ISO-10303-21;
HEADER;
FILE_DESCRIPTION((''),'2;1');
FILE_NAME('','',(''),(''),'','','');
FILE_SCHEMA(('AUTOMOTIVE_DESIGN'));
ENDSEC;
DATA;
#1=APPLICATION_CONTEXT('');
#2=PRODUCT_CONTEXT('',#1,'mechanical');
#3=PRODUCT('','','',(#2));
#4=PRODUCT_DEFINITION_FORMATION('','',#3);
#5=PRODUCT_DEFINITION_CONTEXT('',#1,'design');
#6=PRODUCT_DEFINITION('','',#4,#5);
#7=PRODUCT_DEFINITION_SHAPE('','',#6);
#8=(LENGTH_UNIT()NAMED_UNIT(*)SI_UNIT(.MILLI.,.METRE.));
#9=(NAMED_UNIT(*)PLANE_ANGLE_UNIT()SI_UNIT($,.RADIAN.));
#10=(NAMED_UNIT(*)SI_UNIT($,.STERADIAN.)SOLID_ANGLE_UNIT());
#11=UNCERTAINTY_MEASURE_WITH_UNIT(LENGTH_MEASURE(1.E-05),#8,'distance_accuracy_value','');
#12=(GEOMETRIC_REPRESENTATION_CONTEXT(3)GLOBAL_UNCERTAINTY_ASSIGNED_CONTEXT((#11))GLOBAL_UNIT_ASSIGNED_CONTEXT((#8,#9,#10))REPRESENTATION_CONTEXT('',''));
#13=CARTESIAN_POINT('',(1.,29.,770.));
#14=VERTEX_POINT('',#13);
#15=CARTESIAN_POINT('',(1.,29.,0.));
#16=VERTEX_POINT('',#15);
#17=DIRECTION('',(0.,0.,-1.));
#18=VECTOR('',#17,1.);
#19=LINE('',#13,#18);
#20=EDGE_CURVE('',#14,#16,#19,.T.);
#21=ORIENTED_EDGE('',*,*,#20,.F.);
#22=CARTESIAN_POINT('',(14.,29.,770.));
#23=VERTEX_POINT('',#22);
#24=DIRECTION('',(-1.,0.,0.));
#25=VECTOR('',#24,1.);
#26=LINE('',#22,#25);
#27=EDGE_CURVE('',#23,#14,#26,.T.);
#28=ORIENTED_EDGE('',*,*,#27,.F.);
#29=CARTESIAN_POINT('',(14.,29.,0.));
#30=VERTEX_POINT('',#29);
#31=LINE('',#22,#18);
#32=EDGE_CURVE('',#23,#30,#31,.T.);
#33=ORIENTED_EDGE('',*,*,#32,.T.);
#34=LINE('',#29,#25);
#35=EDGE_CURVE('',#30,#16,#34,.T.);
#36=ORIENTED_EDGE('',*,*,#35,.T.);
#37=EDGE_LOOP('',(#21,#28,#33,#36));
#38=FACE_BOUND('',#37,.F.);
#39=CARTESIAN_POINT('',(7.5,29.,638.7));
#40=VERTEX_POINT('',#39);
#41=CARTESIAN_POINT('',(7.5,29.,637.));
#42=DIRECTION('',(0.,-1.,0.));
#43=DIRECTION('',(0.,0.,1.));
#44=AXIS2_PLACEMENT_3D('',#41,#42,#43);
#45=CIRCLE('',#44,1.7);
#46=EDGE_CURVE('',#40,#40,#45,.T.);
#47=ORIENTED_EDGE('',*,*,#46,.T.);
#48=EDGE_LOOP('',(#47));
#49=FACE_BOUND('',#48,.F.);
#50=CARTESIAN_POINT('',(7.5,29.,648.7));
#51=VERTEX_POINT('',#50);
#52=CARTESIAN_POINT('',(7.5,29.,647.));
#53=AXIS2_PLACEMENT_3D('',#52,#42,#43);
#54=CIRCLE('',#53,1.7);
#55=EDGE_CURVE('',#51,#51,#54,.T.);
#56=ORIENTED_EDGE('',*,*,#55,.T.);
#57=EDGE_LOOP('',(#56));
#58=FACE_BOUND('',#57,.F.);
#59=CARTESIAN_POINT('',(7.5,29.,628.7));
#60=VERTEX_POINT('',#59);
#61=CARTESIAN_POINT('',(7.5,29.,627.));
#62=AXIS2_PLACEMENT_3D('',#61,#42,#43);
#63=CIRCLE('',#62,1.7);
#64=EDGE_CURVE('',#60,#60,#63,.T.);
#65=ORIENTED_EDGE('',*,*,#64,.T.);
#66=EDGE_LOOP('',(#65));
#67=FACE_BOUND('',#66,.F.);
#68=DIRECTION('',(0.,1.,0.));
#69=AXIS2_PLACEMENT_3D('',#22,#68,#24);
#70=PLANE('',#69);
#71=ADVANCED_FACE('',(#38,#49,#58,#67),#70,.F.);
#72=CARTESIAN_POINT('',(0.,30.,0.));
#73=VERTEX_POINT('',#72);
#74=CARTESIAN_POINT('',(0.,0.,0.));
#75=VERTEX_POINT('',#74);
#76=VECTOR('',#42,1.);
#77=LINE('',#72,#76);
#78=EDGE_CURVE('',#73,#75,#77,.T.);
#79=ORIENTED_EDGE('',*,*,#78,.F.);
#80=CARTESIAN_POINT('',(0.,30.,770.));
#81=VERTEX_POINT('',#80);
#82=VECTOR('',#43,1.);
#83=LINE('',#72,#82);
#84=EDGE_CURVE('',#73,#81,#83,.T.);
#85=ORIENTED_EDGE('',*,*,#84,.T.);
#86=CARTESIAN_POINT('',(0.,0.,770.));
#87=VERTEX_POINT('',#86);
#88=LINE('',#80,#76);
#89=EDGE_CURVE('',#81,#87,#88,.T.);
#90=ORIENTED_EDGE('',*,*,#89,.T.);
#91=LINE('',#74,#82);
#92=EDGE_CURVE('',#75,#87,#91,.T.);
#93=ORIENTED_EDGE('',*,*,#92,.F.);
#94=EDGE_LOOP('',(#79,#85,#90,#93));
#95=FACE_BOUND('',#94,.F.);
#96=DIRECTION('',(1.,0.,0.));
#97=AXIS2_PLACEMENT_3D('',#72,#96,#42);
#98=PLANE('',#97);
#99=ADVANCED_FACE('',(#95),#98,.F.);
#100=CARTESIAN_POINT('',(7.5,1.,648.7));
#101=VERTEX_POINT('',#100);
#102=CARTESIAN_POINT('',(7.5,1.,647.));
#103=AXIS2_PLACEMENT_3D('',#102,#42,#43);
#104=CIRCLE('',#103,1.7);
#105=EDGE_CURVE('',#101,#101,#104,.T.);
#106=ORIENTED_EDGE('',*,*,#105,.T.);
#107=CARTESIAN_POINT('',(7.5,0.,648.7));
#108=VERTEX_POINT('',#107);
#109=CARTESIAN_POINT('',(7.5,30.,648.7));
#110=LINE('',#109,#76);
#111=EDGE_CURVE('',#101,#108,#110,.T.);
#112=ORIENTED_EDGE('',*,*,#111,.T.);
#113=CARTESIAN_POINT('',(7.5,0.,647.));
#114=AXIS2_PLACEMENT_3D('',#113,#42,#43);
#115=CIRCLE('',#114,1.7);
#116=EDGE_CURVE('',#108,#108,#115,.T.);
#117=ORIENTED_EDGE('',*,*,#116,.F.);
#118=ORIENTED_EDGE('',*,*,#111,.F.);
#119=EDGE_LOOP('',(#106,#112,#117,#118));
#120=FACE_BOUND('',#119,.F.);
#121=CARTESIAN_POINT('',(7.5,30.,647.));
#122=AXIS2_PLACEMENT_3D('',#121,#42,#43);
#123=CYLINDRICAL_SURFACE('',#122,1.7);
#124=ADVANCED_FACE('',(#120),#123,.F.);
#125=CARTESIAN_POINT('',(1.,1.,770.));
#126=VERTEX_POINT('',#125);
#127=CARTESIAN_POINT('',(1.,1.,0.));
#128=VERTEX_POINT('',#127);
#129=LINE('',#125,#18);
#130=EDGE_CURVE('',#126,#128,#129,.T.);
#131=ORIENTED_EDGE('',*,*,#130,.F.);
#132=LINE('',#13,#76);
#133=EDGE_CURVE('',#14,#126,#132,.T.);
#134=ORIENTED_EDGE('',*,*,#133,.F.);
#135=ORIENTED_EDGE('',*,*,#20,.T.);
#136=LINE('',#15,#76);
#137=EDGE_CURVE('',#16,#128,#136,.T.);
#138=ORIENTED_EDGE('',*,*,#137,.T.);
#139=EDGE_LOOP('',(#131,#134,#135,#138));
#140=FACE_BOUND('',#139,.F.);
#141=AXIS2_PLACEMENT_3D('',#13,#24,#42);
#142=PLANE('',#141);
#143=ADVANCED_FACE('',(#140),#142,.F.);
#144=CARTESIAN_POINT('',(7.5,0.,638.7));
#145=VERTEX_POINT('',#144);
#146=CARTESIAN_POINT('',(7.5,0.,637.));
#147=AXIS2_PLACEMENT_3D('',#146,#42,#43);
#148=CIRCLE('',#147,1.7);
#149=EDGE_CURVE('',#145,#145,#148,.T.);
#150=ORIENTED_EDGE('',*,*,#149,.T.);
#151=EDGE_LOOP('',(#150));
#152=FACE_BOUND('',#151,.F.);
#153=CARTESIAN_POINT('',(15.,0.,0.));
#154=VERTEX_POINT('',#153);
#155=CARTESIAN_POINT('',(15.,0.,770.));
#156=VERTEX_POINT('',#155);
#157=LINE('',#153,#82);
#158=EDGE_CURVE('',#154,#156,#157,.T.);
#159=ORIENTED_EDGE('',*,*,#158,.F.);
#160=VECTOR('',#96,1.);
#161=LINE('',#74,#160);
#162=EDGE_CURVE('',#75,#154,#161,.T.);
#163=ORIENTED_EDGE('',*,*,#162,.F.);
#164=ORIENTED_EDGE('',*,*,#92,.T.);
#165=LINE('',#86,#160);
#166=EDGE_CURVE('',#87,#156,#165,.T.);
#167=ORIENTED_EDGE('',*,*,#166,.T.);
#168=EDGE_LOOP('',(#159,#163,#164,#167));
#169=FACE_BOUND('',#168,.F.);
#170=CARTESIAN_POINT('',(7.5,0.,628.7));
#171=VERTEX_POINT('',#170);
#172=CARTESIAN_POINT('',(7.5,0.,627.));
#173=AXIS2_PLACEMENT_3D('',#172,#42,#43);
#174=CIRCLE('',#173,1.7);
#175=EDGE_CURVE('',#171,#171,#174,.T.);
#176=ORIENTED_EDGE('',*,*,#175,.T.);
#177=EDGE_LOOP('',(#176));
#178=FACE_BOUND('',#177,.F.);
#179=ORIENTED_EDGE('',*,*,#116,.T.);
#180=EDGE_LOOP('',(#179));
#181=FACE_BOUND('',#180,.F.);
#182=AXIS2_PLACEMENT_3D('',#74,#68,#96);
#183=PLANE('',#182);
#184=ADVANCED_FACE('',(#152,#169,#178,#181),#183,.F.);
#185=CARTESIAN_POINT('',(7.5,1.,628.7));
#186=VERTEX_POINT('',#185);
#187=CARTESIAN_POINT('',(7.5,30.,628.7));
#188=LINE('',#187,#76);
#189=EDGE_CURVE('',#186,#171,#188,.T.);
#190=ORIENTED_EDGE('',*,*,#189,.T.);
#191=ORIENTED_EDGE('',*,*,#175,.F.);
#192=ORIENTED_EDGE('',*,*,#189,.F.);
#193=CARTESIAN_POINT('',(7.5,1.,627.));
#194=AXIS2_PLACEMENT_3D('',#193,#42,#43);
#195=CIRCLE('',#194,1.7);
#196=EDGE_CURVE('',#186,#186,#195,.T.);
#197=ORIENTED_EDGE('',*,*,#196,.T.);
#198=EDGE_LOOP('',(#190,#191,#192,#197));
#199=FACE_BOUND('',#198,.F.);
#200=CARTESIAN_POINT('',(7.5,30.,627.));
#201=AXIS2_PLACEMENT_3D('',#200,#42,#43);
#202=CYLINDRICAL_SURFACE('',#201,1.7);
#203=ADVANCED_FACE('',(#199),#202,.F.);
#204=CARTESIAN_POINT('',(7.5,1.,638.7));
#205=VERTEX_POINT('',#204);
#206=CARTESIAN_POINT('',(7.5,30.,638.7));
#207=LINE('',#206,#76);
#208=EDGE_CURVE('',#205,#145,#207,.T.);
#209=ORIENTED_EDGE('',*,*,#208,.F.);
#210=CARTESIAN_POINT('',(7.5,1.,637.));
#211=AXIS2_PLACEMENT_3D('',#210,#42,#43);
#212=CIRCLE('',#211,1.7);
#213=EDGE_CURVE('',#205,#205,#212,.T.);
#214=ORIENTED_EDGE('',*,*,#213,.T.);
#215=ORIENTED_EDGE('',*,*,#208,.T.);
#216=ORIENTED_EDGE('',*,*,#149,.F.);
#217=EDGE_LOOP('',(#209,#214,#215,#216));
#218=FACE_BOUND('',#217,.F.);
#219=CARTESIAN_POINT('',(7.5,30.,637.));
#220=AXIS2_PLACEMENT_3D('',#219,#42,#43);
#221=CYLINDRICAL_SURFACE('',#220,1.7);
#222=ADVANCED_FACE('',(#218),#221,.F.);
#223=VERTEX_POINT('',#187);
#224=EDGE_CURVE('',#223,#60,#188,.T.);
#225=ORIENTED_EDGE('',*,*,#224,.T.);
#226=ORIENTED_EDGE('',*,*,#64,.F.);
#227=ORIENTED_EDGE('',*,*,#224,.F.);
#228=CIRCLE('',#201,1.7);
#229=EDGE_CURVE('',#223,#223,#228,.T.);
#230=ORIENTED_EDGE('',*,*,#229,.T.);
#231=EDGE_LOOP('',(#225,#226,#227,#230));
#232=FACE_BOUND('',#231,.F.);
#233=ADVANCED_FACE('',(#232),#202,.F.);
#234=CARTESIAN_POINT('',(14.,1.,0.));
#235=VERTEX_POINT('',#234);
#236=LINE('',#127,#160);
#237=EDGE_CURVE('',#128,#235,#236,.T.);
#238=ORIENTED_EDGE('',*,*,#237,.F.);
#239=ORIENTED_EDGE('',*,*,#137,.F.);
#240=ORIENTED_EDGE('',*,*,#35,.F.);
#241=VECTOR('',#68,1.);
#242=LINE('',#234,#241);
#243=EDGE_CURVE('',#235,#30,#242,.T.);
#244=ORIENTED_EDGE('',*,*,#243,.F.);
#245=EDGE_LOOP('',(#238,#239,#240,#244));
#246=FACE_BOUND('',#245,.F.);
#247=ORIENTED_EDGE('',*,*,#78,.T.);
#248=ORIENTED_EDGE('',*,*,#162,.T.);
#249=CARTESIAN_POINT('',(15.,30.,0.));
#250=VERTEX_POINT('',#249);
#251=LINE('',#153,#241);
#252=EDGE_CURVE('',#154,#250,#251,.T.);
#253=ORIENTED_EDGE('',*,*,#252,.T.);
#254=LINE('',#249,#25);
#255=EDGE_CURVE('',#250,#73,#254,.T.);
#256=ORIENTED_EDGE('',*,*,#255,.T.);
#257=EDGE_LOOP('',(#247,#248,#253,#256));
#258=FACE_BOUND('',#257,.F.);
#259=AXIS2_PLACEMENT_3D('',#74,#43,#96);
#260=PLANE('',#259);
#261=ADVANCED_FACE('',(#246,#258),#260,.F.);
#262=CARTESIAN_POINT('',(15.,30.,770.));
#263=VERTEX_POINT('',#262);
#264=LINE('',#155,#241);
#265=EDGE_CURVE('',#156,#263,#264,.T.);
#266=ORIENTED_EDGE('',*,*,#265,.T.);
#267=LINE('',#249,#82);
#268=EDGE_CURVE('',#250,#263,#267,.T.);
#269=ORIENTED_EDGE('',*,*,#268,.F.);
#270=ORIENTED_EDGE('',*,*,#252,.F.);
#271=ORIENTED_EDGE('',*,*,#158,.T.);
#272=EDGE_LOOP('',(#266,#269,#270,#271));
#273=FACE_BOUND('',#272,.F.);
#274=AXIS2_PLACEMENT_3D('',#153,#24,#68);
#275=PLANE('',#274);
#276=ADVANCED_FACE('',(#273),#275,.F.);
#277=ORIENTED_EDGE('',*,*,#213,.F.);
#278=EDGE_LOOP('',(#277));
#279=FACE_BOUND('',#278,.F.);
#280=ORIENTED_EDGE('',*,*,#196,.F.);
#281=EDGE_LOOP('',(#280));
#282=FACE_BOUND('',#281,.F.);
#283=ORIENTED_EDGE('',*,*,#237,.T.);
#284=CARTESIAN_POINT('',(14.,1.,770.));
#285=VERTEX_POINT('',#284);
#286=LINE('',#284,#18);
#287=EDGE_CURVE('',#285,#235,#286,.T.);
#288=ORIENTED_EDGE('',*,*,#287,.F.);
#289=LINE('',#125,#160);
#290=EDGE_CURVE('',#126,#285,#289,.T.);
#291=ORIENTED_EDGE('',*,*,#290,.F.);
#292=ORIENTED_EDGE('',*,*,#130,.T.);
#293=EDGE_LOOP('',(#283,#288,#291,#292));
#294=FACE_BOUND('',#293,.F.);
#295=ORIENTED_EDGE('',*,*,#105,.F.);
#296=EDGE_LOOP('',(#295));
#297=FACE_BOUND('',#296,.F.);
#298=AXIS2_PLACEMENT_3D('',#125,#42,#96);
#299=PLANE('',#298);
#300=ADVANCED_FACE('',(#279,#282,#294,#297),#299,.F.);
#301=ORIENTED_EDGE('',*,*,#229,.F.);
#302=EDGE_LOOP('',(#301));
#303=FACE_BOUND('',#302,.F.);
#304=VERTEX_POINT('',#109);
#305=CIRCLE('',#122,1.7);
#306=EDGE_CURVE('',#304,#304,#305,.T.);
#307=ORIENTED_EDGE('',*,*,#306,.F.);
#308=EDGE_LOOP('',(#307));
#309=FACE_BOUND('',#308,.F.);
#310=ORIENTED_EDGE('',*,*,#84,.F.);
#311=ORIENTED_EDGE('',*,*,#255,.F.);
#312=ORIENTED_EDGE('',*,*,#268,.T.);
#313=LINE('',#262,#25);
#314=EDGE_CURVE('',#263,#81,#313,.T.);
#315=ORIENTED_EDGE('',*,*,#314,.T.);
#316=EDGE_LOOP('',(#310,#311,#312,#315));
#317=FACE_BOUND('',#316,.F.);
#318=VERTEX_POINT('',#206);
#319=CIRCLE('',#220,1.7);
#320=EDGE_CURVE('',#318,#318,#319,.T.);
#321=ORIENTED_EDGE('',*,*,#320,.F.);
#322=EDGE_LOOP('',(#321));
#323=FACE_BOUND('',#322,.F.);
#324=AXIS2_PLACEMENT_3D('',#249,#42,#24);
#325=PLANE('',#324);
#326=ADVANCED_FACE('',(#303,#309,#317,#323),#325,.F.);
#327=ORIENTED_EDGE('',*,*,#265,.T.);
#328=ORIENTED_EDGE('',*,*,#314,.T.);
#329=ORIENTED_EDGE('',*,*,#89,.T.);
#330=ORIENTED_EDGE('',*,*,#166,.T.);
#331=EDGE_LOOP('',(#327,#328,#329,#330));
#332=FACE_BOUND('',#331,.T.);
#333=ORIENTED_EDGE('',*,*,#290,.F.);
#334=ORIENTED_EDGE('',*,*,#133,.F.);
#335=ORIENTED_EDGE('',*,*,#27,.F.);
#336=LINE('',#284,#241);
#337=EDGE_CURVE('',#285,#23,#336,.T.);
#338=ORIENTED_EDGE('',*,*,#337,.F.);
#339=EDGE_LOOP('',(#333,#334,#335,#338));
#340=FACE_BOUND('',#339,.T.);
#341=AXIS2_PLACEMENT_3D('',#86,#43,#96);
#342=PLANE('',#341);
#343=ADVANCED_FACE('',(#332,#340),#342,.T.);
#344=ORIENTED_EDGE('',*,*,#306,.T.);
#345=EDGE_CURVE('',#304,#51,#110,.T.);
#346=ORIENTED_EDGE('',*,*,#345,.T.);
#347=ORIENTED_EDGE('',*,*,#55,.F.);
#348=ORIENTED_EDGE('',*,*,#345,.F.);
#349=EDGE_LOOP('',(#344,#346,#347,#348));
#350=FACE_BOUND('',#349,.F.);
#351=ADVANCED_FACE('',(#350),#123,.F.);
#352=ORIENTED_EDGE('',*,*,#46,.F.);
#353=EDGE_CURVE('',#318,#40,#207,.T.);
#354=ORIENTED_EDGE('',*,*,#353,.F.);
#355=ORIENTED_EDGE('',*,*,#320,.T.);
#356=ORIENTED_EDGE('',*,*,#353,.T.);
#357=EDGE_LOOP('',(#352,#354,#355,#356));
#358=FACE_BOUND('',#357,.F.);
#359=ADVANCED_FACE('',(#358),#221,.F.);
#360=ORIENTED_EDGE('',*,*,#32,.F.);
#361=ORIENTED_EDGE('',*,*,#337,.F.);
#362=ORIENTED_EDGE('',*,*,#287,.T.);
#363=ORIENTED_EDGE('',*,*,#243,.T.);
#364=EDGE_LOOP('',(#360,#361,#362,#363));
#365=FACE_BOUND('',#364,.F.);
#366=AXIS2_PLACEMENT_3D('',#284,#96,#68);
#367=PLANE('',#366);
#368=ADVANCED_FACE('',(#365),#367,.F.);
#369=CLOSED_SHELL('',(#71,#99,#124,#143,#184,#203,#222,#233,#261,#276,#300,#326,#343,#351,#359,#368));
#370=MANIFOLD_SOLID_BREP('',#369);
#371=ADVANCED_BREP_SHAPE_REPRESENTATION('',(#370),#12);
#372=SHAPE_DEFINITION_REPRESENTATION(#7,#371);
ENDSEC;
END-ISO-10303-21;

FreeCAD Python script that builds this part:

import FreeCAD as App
import Part
import Sketcher

V = App.Vector
Q = App.Units.Quantity

doc = App.newDocument("Part")
body = doc.addObject("PartDesign::Body", "Body")

sketch1 = body.newObject("Sketcher::SketchObject", "Sketch")
sketch1.AttachmentSupport = (doc.getObject("XY_Plane"), [""])
sketch1.MapMode = "FlatFace"
sketch1.addGeometry([
    Part.LineSegment(V(0, 30, 0), V(0, 0, 0)),
    Part.LineSegment(V(0, 0, 0), V(15, 0, 0)),
    Part.LineSegment(V(15, 0, 0), V(15, 30, 0)),
    Part.LineSegment(V(15, 30, 0), V(0, 30, 0)),
], False)
sketch1.addConstraint([
    Sketcher.Constraint("Coincident", 0, 2, 1, 1),
    Sketcher.Constraint("Coincident", 1, 2, 2, 1),
    Sketcher.Constraint("Coincident", 2, 2, 3, 1),
    Sketcher.Constraint("Coincident", 3, 2, 0, 1),
    Sketcher.Constraint("Vertical", 0),
    Sketcher.Constraint("Horizontal", 1),
    Sketcher.Constraint("Vertical", 2),
    Sketcher.Constraint("Horizontal", 3),
    Sketcher.Constraint("Coincident", 0, 2, -1, 1),
    Sketcher.Constraint("DistanceX", 1, 1, 1, 2, Q("15 mm")),
    Sketcher.Constraint("DistanceY", 0, 2, 0, 1, Q("30 mm")),
])
pad1 = body.newObject("PartDesign::Pad", "Pad")
pad1.Profile = sketch1
pad1.Length = 770

sketch2 = body.newObject("Sketcher::SketchObject", "Sketch001")
sketch2.AttachmentSupport = (doc.getObject("XY_Plane"), [""])
sketch2.MapMode = "FlatFace"
sketch2.AttachmentOffset = App.Placement(V(0, 0, 770), App.Rotation())
sketch2.addGeometry([
    Part.LineSegment(V(1, 29, 0), V(1, 1, 0)),
    Part.LineSegment(V(1, 1, 0), V(14, 1, 0)),
    Part.LineSegment(V(14, 1, 0), V(14, 29, 0)),
    Part.LineSegment(V(14, 29, 0), V(1, 29, 0)),
], False)
sketch2.addConstraint([
    Sketcher.Constraint("Coincident", 0, 2, 1, 1),
    Sketcher.Constraint("Coincident", 1, 2, 2, 1),
    Sketcher.Constraint("Coincident", 2, 2, 3, 1),
    Sketcher.Constraint("Coincident", 3, 2, 0, 1),
    Sketcher.Constraint("Vertical", 0),
    Sketcher.Constraint("Horizontal", 1),
    Sketcher.Constraint("Vertical", 2),
    Sketcher.Constraint("Horizontal", 3),
    Sketcher.Constraint("DistanceX", 1, 1, 1, 2, Q("13 mm")),
    Sketcher.Constraint("DistanceY", 0, 2, 0, 1, Q("28 mm")),
    Sketcher.Constraint("DistanceX", -1, 1, 0, 2, Q("1 mm")),
    Sketcher.Constraint("DistanceY", -1, 1, 0, 2, Q("1 mm")),
])
pocket1 = body.newObject("PartDesign::Pocket", "Pocket")
pocket1.Profile = sketch2
pocket1.Length = 770

sketch3 = body.newObject("Sketcher::SketchObject", "Sketch002")
sketch3.AttachmentSupport = (doc.getObject("XZ_Plane"), [""])
sketch3.MapMode = "FlatFace"
sketch3.AttachmentOffset = App.Placement(V(0, 0, -30), App.Rotation())
sketch3.addGeometry([
    Part.Circle(V(7.5, 647, 0), V(0, 0, 1), 1.7),
    Part.Circle(V(7.5, 637, 0), V(0, 0, 1), 1.7),
    Part.Circle(V(7.5, 627, 0), V(0, 0, 1), 1.7),
], False)
sketch3.addConstraint([
    Sketcher.Constraint("Equal", 0, 1),
    Sketcher.Constraint("Equal", 1, 2),
    Sketcher.Constraint("Vertical", 0, 3, 1, 3),
    Sketcher.Constraint("Vertical", 1, 3, 2, 3),
    Sketcher.Constraint("Diameter", 0, Q("3.4 mm")),
    Sketcher.Constraint("DistanceY", -1, 1, 0, 3, Q("647 mm")),
    Sketcher.Constraint("DistanceY", -1, 1, 1, 3, Q("637 mm")),
    Sketcher.Constraint("DistanceY", -1, 1, 2, 3, Q("627 mm")),
    Sketcher.Constraint("DistanceX", -1, 1, 0, 3, Q("7.5 mm")),
])
doc.recompute()
hole = body.newObject("PartDesign::Hole", "Hole")
hole.Profile = sketch3
hole.ThreadType = "None"
hole.Diameter = 3.4
hole.DepthType = "Dimension"
hole.Depth = 30
hole.DrillPoint = "Flat"
hole.Reversed = True

doc.recompute()
